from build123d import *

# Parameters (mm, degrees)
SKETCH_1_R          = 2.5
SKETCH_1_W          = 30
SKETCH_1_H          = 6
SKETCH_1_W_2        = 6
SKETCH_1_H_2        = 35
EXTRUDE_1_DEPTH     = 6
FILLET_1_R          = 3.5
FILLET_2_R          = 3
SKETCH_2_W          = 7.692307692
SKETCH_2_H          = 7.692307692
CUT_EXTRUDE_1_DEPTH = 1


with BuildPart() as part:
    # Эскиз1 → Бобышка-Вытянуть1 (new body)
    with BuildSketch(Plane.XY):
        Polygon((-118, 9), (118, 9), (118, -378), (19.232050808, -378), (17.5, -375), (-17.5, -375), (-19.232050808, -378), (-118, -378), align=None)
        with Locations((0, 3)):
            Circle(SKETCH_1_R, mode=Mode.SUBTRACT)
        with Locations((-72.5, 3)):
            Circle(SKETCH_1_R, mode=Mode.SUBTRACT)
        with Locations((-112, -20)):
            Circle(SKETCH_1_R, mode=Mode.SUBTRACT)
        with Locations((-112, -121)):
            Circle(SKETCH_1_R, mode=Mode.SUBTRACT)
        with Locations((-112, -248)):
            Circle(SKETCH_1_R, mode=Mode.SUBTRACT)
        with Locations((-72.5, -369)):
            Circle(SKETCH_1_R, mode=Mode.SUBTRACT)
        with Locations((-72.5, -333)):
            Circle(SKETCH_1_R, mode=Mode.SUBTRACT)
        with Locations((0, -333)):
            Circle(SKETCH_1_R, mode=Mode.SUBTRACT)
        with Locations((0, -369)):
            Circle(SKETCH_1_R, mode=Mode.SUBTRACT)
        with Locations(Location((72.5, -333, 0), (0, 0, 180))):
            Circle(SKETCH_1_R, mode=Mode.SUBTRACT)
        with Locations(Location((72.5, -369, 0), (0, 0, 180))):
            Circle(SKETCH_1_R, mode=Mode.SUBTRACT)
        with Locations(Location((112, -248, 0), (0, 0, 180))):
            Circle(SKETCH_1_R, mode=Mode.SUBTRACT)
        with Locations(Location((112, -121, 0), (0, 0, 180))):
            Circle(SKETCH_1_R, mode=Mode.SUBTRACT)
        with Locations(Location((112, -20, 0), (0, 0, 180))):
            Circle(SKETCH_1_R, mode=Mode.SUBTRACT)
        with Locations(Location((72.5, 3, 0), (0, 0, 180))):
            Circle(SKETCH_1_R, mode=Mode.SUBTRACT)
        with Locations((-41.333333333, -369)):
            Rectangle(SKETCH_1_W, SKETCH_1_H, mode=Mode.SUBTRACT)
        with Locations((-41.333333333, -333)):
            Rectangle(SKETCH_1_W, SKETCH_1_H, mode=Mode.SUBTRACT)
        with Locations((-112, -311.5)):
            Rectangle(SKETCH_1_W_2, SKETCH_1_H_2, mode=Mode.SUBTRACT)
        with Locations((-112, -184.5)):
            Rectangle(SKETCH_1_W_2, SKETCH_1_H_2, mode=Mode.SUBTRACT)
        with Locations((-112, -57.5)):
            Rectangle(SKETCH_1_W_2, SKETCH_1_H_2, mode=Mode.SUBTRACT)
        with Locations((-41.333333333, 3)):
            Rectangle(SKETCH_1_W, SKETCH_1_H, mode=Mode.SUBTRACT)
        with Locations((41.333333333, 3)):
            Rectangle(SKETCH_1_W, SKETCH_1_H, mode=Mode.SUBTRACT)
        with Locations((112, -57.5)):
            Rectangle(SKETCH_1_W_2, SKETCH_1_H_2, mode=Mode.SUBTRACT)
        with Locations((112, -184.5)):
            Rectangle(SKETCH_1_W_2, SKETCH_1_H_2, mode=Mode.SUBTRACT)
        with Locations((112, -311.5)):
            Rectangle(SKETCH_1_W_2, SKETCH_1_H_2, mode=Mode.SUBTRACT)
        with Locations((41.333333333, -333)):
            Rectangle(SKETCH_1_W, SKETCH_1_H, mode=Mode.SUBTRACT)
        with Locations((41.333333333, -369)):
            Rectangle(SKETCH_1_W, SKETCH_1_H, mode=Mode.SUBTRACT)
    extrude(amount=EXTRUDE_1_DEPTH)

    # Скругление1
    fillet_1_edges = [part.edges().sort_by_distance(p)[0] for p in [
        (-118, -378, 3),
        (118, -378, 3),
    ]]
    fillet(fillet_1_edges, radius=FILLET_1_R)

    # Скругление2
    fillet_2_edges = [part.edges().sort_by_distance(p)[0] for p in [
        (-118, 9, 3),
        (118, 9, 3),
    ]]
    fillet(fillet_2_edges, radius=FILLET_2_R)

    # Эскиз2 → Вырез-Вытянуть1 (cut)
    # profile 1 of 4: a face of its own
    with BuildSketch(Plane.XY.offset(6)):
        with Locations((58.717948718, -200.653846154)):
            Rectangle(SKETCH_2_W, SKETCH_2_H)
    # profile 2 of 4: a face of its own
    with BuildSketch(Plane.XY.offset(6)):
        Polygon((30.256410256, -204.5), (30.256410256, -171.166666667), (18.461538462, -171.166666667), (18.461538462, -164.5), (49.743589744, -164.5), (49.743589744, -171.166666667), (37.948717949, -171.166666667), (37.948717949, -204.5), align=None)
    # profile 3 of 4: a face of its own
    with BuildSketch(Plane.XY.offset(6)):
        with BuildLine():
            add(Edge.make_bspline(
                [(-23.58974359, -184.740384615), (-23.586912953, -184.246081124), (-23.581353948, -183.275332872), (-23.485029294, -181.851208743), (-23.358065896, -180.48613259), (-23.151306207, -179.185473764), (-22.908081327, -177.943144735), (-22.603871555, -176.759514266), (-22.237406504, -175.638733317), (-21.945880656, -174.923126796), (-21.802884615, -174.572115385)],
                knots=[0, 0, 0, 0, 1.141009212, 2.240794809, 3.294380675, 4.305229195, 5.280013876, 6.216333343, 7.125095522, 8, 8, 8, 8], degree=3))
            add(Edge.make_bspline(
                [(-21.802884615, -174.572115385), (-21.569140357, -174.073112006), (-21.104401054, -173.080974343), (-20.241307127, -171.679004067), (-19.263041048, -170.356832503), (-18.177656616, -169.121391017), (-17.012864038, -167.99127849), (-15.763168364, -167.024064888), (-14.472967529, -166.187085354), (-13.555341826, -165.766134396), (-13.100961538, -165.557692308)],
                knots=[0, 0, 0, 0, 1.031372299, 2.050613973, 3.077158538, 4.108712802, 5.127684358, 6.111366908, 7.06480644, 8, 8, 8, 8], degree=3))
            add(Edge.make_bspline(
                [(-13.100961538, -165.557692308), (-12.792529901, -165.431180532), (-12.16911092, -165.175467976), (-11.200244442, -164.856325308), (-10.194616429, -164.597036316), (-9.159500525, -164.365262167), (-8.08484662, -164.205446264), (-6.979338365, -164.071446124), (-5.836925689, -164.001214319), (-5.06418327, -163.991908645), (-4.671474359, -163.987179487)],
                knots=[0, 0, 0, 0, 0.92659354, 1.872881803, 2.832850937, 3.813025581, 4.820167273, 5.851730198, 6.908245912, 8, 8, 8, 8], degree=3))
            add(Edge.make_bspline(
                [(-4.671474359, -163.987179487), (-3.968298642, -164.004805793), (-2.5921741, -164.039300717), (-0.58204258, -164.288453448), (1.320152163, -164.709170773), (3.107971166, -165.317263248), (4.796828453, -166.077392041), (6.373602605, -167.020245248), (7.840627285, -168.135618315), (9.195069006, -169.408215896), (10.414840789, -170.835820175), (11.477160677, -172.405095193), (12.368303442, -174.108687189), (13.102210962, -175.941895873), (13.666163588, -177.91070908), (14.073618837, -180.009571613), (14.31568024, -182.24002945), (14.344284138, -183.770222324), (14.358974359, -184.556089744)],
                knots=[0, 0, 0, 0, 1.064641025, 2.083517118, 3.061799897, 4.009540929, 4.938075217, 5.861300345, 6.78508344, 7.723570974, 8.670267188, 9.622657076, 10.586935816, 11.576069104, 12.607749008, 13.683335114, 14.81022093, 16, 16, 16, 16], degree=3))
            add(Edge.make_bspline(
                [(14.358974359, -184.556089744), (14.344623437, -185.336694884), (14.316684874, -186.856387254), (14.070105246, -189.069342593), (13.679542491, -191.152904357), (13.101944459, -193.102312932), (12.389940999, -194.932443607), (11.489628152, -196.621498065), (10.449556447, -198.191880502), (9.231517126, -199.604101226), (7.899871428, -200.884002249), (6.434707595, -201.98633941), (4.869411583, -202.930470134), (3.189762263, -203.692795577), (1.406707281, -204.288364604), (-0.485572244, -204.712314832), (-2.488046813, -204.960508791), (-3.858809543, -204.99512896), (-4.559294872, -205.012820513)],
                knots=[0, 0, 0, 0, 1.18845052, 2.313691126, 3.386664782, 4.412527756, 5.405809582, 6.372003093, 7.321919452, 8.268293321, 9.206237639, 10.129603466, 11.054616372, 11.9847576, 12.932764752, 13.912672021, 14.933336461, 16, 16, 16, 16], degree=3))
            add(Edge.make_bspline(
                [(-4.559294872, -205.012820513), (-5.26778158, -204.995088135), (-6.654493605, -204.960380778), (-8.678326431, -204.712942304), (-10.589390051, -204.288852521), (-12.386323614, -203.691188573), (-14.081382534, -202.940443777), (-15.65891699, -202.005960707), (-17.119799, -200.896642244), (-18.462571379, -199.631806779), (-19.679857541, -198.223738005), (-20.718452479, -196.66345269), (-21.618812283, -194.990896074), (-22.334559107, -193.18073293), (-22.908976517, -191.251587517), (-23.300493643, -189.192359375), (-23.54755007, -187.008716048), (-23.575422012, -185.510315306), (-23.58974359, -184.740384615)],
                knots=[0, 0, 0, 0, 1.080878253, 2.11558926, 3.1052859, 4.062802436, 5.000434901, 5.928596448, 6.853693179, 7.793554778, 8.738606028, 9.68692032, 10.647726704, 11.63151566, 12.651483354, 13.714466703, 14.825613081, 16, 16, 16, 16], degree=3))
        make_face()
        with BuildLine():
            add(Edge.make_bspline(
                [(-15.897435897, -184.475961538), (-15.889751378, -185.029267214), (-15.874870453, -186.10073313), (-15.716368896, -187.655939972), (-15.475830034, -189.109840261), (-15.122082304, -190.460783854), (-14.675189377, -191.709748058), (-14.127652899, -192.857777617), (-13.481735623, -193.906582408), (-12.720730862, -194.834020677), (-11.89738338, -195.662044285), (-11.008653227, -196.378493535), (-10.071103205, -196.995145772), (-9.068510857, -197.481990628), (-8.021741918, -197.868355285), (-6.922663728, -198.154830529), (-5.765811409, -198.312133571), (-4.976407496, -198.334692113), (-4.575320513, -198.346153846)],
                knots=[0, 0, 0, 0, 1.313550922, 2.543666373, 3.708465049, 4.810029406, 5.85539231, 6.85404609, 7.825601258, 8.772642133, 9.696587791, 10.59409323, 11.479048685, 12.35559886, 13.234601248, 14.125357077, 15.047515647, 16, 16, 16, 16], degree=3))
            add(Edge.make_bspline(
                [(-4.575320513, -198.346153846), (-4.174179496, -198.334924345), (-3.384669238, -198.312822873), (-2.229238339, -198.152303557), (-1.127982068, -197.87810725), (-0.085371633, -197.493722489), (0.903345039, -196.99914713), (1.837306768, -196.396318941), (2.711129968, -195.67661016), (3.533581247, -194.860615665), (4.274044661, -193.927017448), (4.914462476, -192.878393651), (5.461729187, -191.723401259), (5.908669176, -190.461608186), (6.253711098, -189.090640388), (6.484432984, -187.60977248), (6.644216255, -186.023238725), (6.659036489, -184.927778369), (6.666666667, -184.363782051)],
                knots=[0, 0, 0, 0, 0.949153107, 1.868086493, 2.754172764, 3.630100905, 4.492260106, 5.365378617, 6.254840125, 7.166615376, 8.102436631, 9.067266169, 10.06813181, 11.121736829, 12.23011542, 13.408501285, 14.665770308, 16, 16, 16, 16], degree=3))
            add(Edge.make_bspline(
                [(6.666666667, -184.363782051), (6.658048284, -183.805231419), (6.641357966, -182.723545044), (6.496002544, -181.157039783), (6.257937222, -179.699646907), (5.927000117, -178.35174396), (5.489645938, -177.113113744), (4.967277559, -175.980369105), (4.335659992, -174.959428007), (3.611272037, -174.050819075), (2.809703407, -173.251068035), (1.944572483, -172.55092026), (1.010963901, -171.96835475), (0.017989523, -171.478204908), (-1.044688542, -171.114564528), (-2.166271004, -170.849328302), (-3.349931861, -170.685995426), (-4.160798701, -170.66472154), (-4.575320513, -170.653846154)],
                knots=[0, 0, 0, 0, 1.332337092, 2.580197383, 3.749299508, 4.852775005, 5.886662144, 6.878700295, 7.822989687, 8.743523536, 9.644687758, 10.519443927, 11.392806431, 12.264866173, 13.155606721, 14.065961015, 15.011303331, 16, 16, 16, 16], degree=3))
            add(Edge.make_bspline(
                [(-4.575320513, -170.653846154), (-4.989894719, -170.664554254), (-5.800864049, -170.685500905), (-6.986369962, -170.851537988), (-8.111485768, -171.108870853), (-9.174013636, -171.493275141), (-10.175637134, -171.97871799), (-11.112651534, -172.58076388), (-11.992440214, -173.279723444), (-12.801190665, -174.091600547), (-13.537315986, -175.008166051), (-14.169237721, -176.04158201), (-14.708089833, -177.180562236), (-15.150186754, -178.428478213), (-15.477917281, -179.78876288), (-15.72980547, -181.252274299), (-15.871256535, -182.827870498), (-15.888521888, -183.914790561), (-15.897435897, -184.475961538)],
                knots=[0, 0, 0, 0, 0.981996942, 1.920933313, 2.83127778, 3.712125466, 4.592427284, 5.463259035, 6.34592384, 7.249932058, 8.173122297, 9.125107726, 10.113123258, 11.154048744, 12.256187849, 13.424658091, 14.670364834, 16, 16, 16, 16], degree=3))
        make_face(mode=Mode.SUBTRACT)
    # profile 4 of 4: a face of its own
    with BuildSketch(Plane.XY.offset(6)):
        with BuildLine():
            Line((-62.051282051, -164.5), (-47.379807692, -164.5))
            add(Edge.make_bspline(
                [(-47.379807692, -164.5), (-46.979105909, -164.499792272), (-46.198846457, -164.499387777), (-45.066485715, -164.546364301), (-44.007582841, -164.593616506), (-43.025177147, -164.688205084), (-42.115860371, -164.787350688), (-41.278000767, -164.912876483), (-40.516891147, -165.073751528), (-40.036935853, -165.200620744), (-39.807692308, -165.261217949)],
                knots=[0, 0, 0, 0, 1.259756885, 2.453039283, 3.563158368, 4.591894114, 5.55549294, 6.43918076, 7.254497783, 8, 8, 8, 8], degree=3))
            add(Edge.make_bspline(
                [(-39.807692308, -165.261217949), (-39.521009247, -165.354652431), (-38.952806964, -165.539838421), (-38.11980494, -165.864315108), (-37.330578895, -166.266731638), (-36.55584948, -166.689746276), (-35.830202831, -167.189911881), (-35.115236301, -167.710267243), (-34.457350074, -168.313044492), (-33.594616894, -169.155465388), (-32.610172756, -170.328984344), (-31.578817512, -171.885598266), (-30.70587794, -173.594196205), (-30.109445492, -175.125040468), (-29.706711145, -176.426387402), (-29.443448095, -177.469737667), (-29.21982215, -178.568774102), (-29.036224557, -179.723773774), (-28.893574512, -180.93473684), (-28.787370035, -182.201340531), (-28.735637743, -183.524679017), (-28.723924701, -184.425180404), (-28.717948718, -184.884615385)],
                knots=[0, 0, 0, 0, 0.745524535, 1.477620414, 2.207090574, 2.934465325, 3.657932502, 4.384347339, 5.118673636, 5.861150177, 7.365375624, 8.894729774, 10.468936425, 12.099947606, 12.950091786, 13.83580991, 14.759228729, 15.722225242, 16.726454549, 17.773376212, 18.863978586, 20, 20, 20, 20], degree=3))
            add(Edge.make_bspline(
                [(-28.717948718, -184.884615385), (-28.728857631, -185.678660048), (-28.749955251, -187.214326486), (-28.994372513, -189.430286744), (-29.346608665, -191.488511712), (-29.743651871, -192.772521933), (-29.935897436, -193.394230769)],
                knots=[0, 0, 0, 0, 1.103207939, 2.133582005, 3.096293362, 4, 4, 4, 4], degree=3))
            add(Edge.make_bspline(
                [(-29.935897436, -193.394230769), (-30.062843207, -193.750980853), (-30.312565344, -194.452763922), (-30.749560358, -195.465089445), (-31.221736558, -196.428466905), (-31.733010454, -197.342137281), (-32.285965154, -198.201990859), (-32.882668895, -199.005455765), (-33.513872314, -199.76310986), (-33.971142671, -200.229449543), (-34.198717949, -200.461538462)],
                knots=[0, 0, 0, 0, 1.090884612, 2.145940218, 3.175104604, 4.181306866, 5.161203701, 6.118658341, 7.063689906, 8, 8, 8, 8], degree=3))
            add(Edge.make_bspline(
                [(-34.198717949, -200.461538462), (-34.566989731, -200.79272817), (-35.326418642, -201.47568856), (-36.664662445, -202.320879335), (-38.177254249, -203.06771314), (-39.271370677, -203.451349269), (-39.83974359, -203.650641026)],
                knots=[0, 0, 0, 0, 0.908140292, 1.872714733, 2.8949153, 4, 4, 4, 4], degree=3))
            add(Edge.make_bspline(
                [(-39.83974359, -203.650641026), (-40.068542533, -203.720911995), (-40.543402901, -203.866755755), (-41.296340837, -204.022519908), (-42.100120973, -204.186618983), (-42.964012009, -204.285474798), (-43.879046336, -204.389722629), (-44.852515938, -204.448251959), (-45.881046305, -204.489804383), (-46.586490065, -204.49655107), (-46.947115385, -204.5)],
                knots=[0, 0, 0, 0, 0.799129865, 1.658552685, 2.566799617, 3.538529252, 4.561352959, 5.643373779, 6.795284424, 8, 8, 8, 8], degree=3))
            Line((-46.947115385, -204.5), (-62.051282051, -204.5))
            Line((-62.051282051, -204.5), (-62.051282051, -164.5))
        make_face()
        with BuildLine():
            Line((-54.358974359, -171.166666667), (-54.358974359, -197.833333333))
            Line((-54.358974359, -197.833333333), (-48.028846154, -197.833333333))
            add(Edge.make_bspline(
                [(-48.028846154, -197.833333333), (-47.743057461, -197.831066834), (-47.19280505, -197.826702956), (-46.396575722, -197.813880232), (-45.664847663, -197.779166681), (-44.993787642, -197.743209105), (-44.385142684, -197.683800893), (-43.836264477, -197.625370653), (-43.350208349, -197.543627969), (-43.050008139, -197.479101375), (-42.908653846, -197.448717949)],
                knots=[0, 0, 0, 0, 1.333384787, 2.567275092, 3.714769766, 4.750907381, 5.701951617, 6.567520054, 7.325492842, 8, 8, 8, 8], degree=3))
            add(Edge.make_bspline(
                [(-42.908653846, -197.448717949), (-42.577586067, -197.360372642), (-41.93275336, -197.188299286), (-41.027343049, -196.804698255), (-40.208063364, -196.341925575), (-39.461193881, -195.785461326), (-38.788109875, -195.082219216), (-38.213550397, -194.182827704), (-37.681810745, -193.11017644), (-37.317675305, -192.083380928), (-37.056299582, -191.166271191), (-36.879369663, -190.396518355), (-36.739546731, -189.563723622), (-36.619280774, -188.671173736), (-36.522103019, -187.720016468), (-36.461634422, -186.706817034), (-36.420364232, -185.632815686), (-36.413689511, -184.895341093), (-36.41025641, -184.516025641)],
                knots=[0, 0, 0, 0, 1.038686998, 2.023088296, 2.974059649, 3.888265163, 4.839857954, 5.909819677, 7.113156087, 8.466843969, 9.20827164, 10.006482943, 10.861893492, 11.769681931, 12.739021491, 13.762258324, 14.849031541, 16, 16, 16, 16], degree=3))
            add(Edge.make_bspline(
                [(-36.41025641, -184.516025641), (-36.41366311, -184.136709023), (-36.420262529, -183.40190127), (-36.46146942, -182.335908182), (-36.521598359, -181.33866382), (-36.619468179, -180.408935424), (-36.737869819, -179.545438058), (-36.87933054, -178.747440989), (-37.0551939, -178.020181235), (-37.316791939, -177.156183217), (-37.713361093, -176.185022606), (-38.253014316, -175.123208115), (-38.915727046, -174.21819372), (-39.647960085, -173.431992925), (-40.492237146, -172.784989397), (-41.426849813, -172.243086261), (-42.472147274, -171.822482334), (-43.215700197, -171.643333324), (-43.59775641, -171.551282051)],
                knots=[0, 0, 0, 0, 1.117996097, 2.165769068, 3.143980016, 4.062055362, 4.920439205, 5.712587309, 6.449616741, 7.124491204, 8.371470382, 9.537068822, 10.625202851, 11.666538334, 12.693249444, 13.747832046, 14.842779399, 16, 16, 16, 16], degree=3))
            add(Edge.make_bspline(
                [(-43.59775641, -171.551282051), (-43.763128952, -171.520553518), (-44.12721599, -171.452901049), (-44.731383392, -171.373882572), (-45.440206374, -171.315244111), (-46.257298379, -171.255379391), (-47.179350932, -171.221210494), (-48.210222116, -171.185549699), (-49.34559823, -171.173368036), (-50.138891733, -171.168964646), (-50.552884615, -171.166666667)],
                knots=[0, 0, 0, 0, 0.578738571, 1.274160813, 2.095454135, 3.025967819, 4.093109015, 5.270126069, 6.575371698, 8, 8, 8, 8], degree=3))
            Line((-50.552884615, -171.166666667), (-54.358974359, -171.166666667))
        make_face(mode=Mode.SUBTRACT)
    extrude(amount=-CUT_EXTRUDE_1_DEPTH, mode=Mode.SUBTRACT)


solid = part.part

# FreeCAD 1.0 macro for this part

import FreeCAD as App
import Part
import Sketcher
from FreeCAD import Vector
Q = App.Units.Quantity


def edges_at(feature, points):
    """Names of the edges that pass closest to the given points."""
    edges = feature.Shape.Edges
    near = lambda p: min(range(len(edges)), key=lambda i: edges[i].distToShape(Part.Vertex(*p))[0])
    return sorted({f"Edge{near(p) + 1}" for p in points})


def add_polygon(sketch, points):
    """Adds a closed chain of lines whose ends are joined by coincident constraints."""
    first, n = sketch.GeometryCount, len(points)
    for a, b in zip(points, points[1:] + points[:1]):
        sketch.addGeometry(Part.LineSegment(App.Vector(*a, 0), App.Vector(*b, 0)), False)
    for i in range(n):
        sketch.addConstraint(Sketcher.Constraint("Coincident", first + i, 2, first + (i + 1) % n, 1))

doc = App.newDocument("Part")
body = doc.addObject("PartDesign::Body", "Body")

sketch1 = doc.addObject("Sketcher::SketchObject", "Sketch")
body.addObject(sketch1)
sketch1.AttachmentSupport = (doc.XY_Plane, [""])
sketch1.MapMode = "FlatFace"
add_polygon(sketch1, [(118, 9), (-118, 9), (-118, -378), (-19.2, -378), (-17.5, -375), (17.5, -375), (19.2, -378), (118, -378)])
sketch1.addGeometry(Part.Circle(Vector(72.5, -369, 0), Vector(0, 0, 1), 2.5), False)
sketch1.addGeometry(Part.Circle(Vector(72.5, -333, 0), Vector(0, 0, 1), 2.5), False)
add_polygon(sketch1, [(109, -329), (109, -294), (115, -294), (115, -329)])
add_polygon(sketch1, [(26.3, -372), (26.3, -366), (56.3, -366), (56.3, -372)])
add_polygon(sketch1, [(26.3, -336), (26.3, -330), (56.3, -330), (56.3, -336)])
sketch1.addGeometry(Part.Circle(Vector(112, -248, 0), Vector(0, 0, 1), 2.5), False)
add_polygon(sketch1, [(109, -202), (109, -167), (115, -167), (115, -202)])
sketch1.addGeometry(Part.Circle(Vector(0, -369, 0), Vector(0, 0, 1), 2.5), False)
sketch1.addGeometry(Part.Circle(Vector(0, -333, 0), Vector(0, 0, 1), 2.5), False)
add_polygon(sketch1, [(-56.3, -372), (-56.3, -366), (-26.3, -366), (-26.3, -372)])
add_polygon(sketch1, [(-56.3, -336), (-56.3, -330), (-26.3, -330), (-26.3, -336)])
sketch1.addGeometry(Part.Circle(Vector(-72.5, -369, 0), Vector(0, 0, 1), 2.5), False)
sketch1.addGeometry(Part.Circle(Vector(-72.5, -333, 0), Vector(0, 0, 1), 2.5), False)
add_polygon(sketch1, [(-115, -329), (-115, -294), (-109, -294), (-109, -329)])
sketch1.addGeometry(Part.Circle(Vector(-112, -248, 0), Vector(0, 0, 1), 2.5), False)
add_polygon(sketch1, [(-115, -202), (-115, -167), (-109, -167), (-109, -202)])
sketch1.addGeometry(Part.Circle(Vector(112, -121, 0), Vector(0, 0, 1), 2.5), False)
add_polygon(sketch1, [(109, -75), (109, -40), (115, -40), (115, -75)])
sketch1.addGeometry(Part.Circle(Vector(112, -20, 0), Vector(0, 0, 1), 2.5), False)
sketch1.addGeometry(Part.Circle(Vector(72.5, 3, 0), Vector(0, 0, 1), 2.5), False)
add_polygon(sketch1, [(26.3, 0), (26.3, 6), (56.3, 6), (56.3, 0)])
sketch1.addGeometry(Part.Circle(Vector(-112, -121, 0), Vector(0, 0, 1), 2.5), False)
sketch1.addGeometry(Part.Circle(Vector(0, 3, 0), Vector(0, 0, 1), 2.5), False)
add_polygon(sketch1, [(-56.3, 0), (-56.3, 6), (-26.3, 6), (-26.3, 0)])
add_polygon(sketch1, [(-115, -75), (-115, -40), (-109, -40), (-109, -75)])
sketch1.addGeometry(Part.Circle(Vector(-72.5, 3, 0), Vector(0, 0, 1), 2.5), False)
sketch1.addGeometry(Part.Circle(Vector(-112, -20, 0), Vector(0, 0, 1), 2.5), False)
sketch1.addConstraint(Sketcher.Constraint("Horizontal", 0))
sketch1.addConstraint(Sketcher.Constraint("Vertical", 1))
sketch1.addConstraint(Sketcher.Constraint("Horizontal", 2))
sketch1.addConstraint(Sketcher.Constraint("Horizontal", 4))
sketch1.addConstraint(Sketcher.Constraint("Horizontal", 6))
sketch1.addConstraint(Sketcher.Constraint("Vertical", 7))
sketch1.addConstraint(Sketcher.Constraint("Vertical", 10))
sketch1.addConstraint(Sketcher.Constraint("Horizontal", 11))
sketch1.addConstraint(Sketcher.Constraint("Vertical", 12))
sketch1.addConstraint(Sketcher.Constraint("Horizontal", 13))
sketch1.addConstraint(Sketcher.Constraint("Vertical", 14))
sketch1.addConstraint(Sketcher.Constraint("Horizontal", 15))
sketch1.addConstraint(Sketcher.Constraint("Vertical", 16))
sketch1.addConstraint(Sketcher.Constraint("Horizontal", 17))
sketch1.addConstraint(Sketcher.Constraint("Vertical", 18))
sketch1.addConstraint(Sketcher.Constraint("Horizontal", 19))
sketch1.addConstraint(Sketcher.Constraint("Vertical", 20))
sketch1.addConstraint(Sketcher.Constraint("Horizontal", 21))
sketch1.addConstraint(Sketcher.Constraint("Vertical", 23))
sketch1.addConstraint(Sketcher.Constraint("Horizontal", 24))
sketch1.addConstraint(Sketcher.Constraint("Vertical", 25))
sketch1.addConstraint(Sketcher.Constraint("Horizontal", 26))
sketch1.addConstraint(Sketcher.Constraint("Vertical", 29))
sketch1.addConstraint(Sketcher.Constraint("Horizontal", 30))
sketch1.addConstraint(Sketcher.Constraint("Vertical", 31))
sketch1.addConstraint(Sketcher.Constraint("Horizontal", 32))
sketch1.addConstraint(Sketcher.Constraint("Vertical", 33))
sketch1.addConstraint(Sketcher.Constraint("Horizontal", 34))
sketch1.addConstraint(Sketcher.Constraint("Vertical", 35))
sketch1.addConstraint(Sketcher.Constraint("Horizontal", 36))
sketch1.addConstraint(Sketcher.Constraint("Vertical", 39))
sketch1.addConstraint(Sketcher.Constraint("Horizontal", 40))
sketch1.addConstraint(Sketcher.Constraint("Vertical", 41))
sketch1.addConstraint(Sketcher.Constraint("Horizontal", 42))
sketch1.addConstraint(Sketcher.Constraint("Vertical", 44))
sketch1.addConstraint(Sketcher.Constraint("Horizontal", 45))
sketch1.addConstraint(Sketcher.Constraint("Vertical", 46))
sketch1.addConstraint(Sketcher.Constraint("Horizontal", 47))
sketch1.addConstraint(Sketcher.Constraint("Vertical", 49))
sketch1.addConstraint(Sketcher.Constraint("Horizontal", 50))
sketch1.addConstraint(Sketcher.Constraint("Vertical", 51))
sketch1.addConstraint(Sketcher.Constraint("Horizontal", 52))
sketch1.addConstraint(Sketcher.Constraint("Vertical", 55))
sketch1.addConstraint(Sketcher.Constraint("Horizontal", 56))
sketch1.addConstraint(Sketcher.Constraint("Vertical", 57))
sketch1.addConstraint(Sketcher.Constraint("Horizontal", 58))
sketch1.addConstraint(Sketcher.Constraint("Vertical", 61))
sketch1.addConstraint(Sketcher.Constraint("Horizontal", 62))
sketch1.addConstraint(Sketcher.Constraint("Vertical", 63))
sketch1.addConstraint(Sketcher.Constraint("Horizontal", 64))
sketch1.addConstraint(Sketcher.Constraint("Vertical", 65))
sketch1.addConstraint(Sketcher.Constraint("Horizontal", 66))
sketch1.addConstraint(Sketcher.Constraint("Vertical", 67))
sketch1.addConstraint(Sketcher.Constraint("Horizontal", 68))
sketch1.addConstraint(Sketcher.Constraint("Equal", 8, 9))
sketch1.addConstraint(Sketcher.Constraint("Equal", 9, 22))
sketch1.addConstraint(Sketcher.Constraint("Equal", 22, 27))
sketch1.addConstraint(Sketcher.Constraint("Equal", 27, 28))
sketch1.addConstraint(Sketcher.Constraint("Equal", 28, 37))
sketch1.addConstraint(Sketcher.Constraint("Equal", 37, 38))
sketch1.addConstraint(Sketcher.Constraint("Equal", 38, 43))
sketch1.addConstraint(Sketcher.Constraint("Equal", 43, 48))
sketch1.addConstraint(Sketcher.Constraint("Equal", 48, 53))
sketch1.addConstraint(Sketcher.Constraint("Equal", 53, 54))
sketch1.addConstraint(Sketcher.Constraint("Equal", 54, 59))
sketch1.addConstraint(Sketcher.Constraint("Equal", 59, 60))
sketch1.addConstraint(Sketcher.Constraint("Equal", 60, 69))
sketch1.addConstraint(Sketcher.Constraint("Equal", 69, 70))
sketch1.addConstraint(Sketcher.Constraint("Symmetric", 58, 2, 63, 2, -1, 1))
sketch1.addConstraint(Sketcher.Constraint("Symmetric", 8, 3, 37, 3, -2))
sketch1.addConstraint(Sketcher.Constraint("Symmetric", 9, 3, 38, 3, -2))
sketch1.addConstraint(Sketcher.Constraint("Symmetric", 22, 3, 43, 3, -2))
sketch1.addConstraint(Sketcher.Constraint("Symmetric", 48, 3, 59, 3, -2))
sketch1.addConstraint(Sketcher.Constraint("Symmetric", 54, 3, 69, 3, -2))
sketch1.addConstraint(Sketcher.Constraint("Symmetric", 53, 3, 70, 3, -2))
sketch1.addConstraint(Sketcher.Constraint("Symmetric", 2, 2, 5, 2, -2))
sketch1.addConstraint(Sketcher.Constraint("Symmetric", 15, 2, 29, 2, -2))
sketch1.addConstraint(Sketcher.Constraint("Symmetric", 17, 2, 31, 2, -2))
sketch1.addConstraint(Sketcher.Constraint("Symmetric", 19, 2, 33, 2, -2))
sketch1.addConstraint(Sketcher.Constraint("Symmetric", 21, 2, 35, 2, -2))
sketch1.addConstraint(Sketcher.Constraint("Symmetric", 11, 2, 39, 2, -2))
sketch1.addConstraint(Sketcher.Constraint("Symmetric", 13, 2, 41, 2, -2))
sketch1.addConstraint(Sketcher.Constraint("Symmetric", 24, 2, 44, 2, -2))
sketch1.addConstraint(Sketcher.Constraint("Symmetric", 26, 2, 46, 2, -2))
sketch1.addConstraint(Sketcher.Constraint("Symmetric", 56, 2, 61, 2, -2))
sketch1.addConstraint(Sketcher.Constraint("Symmetric", 50, 2, 65, 2, -2))
sketch1.addConstraint(Sketcher.Constraint("Symmetric", 52, 2, 67, 2, -2))
sketch1.addConstraint(Sketcher.Constraint("PointOnObject", 27, 3, -2))
sketch1.addConstraint(Sketcher.Constraint("PointOnObject", 28, 3, -2))
sketch1.addConstraint(Sketcher.Constraint("PointOnObject", 60, 3, -2))
sketch1.addConstraint(Sketcher.Constraint("PointOnObject", 57, 2, -1))
sketch1.addConstraint(Sketcher.Constraint("Horizontal", 8, 3, 27, 3))
sketch1.addConstraint(Sketcher.Constraint("Horizontal", 9, 3, 28, 3))
sketch1.addConstraint(Sketcher.Constraint("Horizontal", 54, 3, 60, 3))
sketch1.addConstraint(Sketcher.Constraint("Vertical", 8, 3, 9, 3))
sketch1.addConstraint(Sketcher.Constraint("Vertical", 22, 3, 48, 3))
sketch1.addConstraint(Sketcher.Constraint("Vertical", 48, 3, 53, 3))
sketch1.addConstraint(Sketcher.Constraint("Vertical", 9, 3, 54, 3))
sketch1.addConstraint(Sketcher.Constraint("Vertical", 17, 2, 18, 2))
sketch1.addConstraint(Sketcher.Constraint("Vertical", 16, 2, 19, 2))
sketch1.addConstraint(Sketcher.Constraint("Vertical", 13, 2, 23, 2))
sketch1.addConstraint(Sketcher.Constraint("Vertical", 12, 2, 24, 2))
sketch1.addConstraint(Sketcher.Constraint("Vertical", 26, 2, 49, 2))
sketch1.addConstraint(Sketcher.Constraint("Vertical", 25, 2, 50, 2))
sketch1.addConstraint(Sketcher.Constraint("Vertical", 21, 2, 55, 2))
sketch1.addConstraint(Sketcher.Constraint("Vertical", 20, 2, 56, 2))
sketch1.addConstraint(Sketcher.Constraint("Equal", 2, 6))
sketch1.addConstraint(Sketcher.Constraint("Equal", 4, 10))
sketch1.addConstraint(Sketcher.Constraint("Equal", 68, 14))
sketch1.addConstraint(Sketcher.Constraint("Equal", 16, 18))
sketch1.addConstraint(Sketcher.Constraint("Equal", 12, 23))
sketch1.addConstraint(Sketcher.Constraint("Equal", 46, 49))
sketch1.addConstraint(Sketcher.Constraint("Equal", 35, 55))
sketch1.addConstraint(Sketcher.Constraint("Equal", 3, 5))
sketch1.addConstraint(Sketcher.Constraint("Diameter", 8, 5.0))
sketch1.addConstraint(Sketcher.Constraint("DistanceX", 0, 2, 0, 1, 236.0))
sketch1.addConstraint(Sketcher.Constraint("DistanceX", 4, 1, 4, 2, 35.0))
sketch1.addConstraint(Sketcher.Constraint("DistanceX", 11, 1, 11, 2, 6.0))
sketch1.addConstraint(Sketcher.Constraint("DistanceX", 15, 1, 15, 2, 30.0))
sketch1.addConstraint(Sketcher.Constraint("DistanceY", 1, 2, 1, 1, 387.0))
sketch1.addConstraint(Sketcher.Constraint("Angle", 3, Q("60 deg")))
sketch1.addConstraint(Sketcher.Constraint("DistanceY", 8, 3, -1, 1, 369.0))
sketch1.addConstraint(Sketcher.Constraint("DistanceY", 9, 3, -1, 1, 333.0))
sketch1.addConstraint(Sketcher.Constraint("DistanceX", -1, 1, 22, 3, 112.0))
sketch1.addConstraint(Sketcher.Constraint("DistanceY", 22, 3, -1, 1, 248.0))
sketch1.addConstraint(Sketcher.Constraint("DistanceY", 48, 3, -1, 1, 121.0))
sketch1.addConstraint(Sketcher.Constraint("DistanceY", 53, 3, -1, 1, 20.0))
sketch1.addConstraint(Sketcher.Constraint("DistanceY", -1, 1, 54, 3, 3.0))
sketch1.addConstraint(Sketcher.Constraint("DistanceY", -1, 1, 0, 2, 9.0))
sketch1.addConstraint(Sketcher.Constraint("DistanceY", 3, 2, -1, 1, 375.0))
sketch1.addConstraint(Sketcher.Constraint("DistanceX", -1, 1, 10, 2, 109.0))
sketch1.addConstraint(Sketcher.Constraint("DistanceY", 10, 2, -1, 1, 294.0))
sketch1.addConstraint(Sketcher.Constraint("DistanceY", 14, 2, -1, 1, 366.0))
sketch1.addConstraint(Sketcher.Constraint("DistanceY", 18, 2, -1, 1, 330.0))
sketch1.addConstraint(Sketcher.Constraint("DistanceY", 23, 2, -1, 1, 167.0))
sketch1.addConstraint(Sketcher.Constraint("DistanceY", 49, 2, -1, 1, 40.0))
sketch1.addConstraint(Sketcher.Constraint("DistanceX", -1, 1, 8, 3, 72.5))
sketch1.addConstraint(Sketcher.Constraint("DistanceX", -1, 1, 14, 2, 26.333333))
pad1 = doc.addObject("PartDesign::Pad", "Pad")
body.addObject(pad1)
pad1.Profile = sketch1
pad1.Length = 6
doc.recompute()

fillet = doc.addObject("PartDesign::Fillet", "Fillet")
body.addObject(fillet)
fillet.Base = (pad1, edges_at(pad1, [(-118, -378, 3), (118, -378, 3)]))
fillet.Radius = 3.5
doc.recompute()

fillet2 = doc.addObject("PartDesign::Fillet", "Fillet001")
body.addObject(fillet2)
fillet2.Base = (fillet, edges_at(fillet, [(-118, 9, 3), (118, 9, 3)]))
fillet2.Radius = 3

sketch2 = doc.addObject("Sketcher::SketchObject", "Sketch001")
body.addObject(sketch2)
sketch2.AttachmentSupport = (doc.XY_Plane, [""])
sketch2.MapMode = "FlatFace"
sketch2.AttachmentOffset = App.Placement(Vector(0, 0, 6), App.Rotation())
add_polygon(sketch2, [(54.871795, -196.807692), (54.871795, -204.5), (62.564103, -204.5), (62.564103, -196.807692)])
add_polygon(sketch2, [(30.25641, -171.166667), (30.25641, -204.5), (37.948718, -204.5), (37.948718, -171.166667), (49.74359, -171.166667), (49.74359, -164.5), (18.461538, -164.5), (18.461538, -171.166667)])
sketch2.addGeometry(Part.BSplineCurve([Vector(-23.589744, -184.740385, 0), Vector(-23.586913, -184.246081, 0), Vector(-23.581354, -183.275333, 0), Vector(-23.485029, -181.851209, 0), Vector(-23.358066, -180.486133, 0), Vector(-23.151306, -179.185474, 0), Vector(-22.908081, -177.943145, 0), Vector(-22.603872, -176.759514, 0), Vector(-22.237407, -175.638733, 0), Vector(-21.945881, -174.923127, 0), Vector(-21.802885, -174.572115, 0)], [4, 1, 1, 1, 1, 1, 1, 1, 4], [0, 1.141009212, 2.240794809, 3.294380675, 4.305229195, 5.280013876, 6.216333343, 7.125095522, 8], False, 3, [1, 1, 1, 1, 1, 1, 1, 1, 1, 1, 1], False), False)
sketch2.addGeometry(Part.BSplineCurve([Vector(-4.559295, -205.012821, 0), Vector(-5.267782, -204.995088, 0), Vector(-6.654494, -204.960381, 0), Vector(-8.678326, -204.712942, 0), Vector(-10.58939, -204.288853, 0), Vector(-12.386324, -203.691189, 0), Vector(-14.081383, -202.940444, 0), Vector(-15.658917, -202.005961, 0), Vector(-17.119799, -200.896642, 0), Vector(-18.462571, -199.631807, 0), Vector(-19.679858, -198.223738, 0), Vector(-20.718452, -196.663453, 0), Vector(-21.618812, -194.990896, 0), Vector(-22.334559, -193.180733, 0), Vector(-22.908977, -191.251588, 0), Vector(-23.300494, -189.192359, 0), Vector(-23.54755, -187.008716, 0), Vector(-23.575422, -185.510315, 0), Vector(-23.589744, -184.740385, 0)], [4, 1, 1, 1, 1, 1, 1, 1, 1, 1, 1, 1, 1, 1, 1, 1, 4], [0, 1.080878253, 2.11558926, 3.1052859, 4.062802436, 5.000434901, 5.928596448, 6.853693179, 7.793554778, 8.738606028, 9.68692032, 10.647726704, 11.63151566, 12.651483354, 13.714466703, 14.825613081, 16], False, 3, [1, 1, 1, 1, 1, 1, 1, 1, 1, 1, 1, 1, 1, 1, 1, 1, 1, 1, 1], False), False)
sketch2.addGeometry(Part.BSplineCurve([Vector(14.358974, -184.55609, 0), Vector(14.344623, -185.336695, 0), Vector(14.316685, -186.856387, 0), Vector(14.070105, -189.069343, 0), Vector(13.679542, -191.152904, 0), Vector(13.101944, -193.102313, 0), Vector(12.389941, -194.932444, 0), Vector(11.489628, -196.621498, 0), Vector(10.449556, -198.191881, 0), Vector(9.231517, -199.604101, 0), Vector(7.899871, -200.884002, 0), Vector(6.434708, -201.986339, 0), Vector(4.869412, -202.93047, 0), Vector(3.189762, -203.692796, 0), Vector(1.406707, -204.288365, 0), Vector(-0.485572, -204.712315, 0), Vector(-2.488047, -204.960509, 0), Vector(-3.85881, -204.995129, 0), Vector(-4.559295, -205.012821, 0)], [4, 1, 1, 1, 1, 1, 1, 1, 1, 1, 1, 1, 1, 1, 1, 1, 4], [0, 1.18845052, 2.313691126, 3.386664782, 4.412527756, 5.405809582, 6.372003093, 7.321919452, 8.268293321, 9.206237639, 10.129603466, 11.054616372, 11.9847576, 12.932764752, 13.912672021, 14.933336461, 16], False, 3, [1, 1, 1, 1, 1, 1, 1, 1, 1, 1, 1, 1, 1, 1, 1, 1, 1, 1, 1], False), False)
sketch2.addGeometry(Part.BSplineCurve([Vector(-4.671474, -163.987179, 0), Vector(-3.968299, -164.004806, 0), Vector(-2.592174, -164.039301, 0), Vector(-0.582043, -164.288453, 0), Vector(1.320152, -164.709171, 0), Vector(3.107971, -165.317263, 0), Vector(4.796828, -166.077392, 0), Vector(6.373603, -167.020245, 0), Vector(7.840627, -168.135618, 0), Vector(9.195069, -169.408216, 0), Vector(10.414841, -170.83582, 0), Vector(11.477161, -172.405095, 0), Vector(12.368303, -174.108687, 0), Vector(13.102211, -175.941896, 0), Vector(13.666164, -177.910709, 0), Vector(14.073619, -180.009572, 0), Vector(14.31568, -182.240029, 0), Vector(14.344284, -183.770222, 0), Vector(14.358974, -184.55609, 0)], [4, 1, 1, 1, 1, 1, 1, 1, 1, 1, 1, 1, 1, 1, 1, 1, 4], [0, 1.064641025, 2.083517118, 3.061799897, 4.009540929, 4.938075217, 5.861300345, 6.78508344, 7.723570974, 8.670267188, 9.622657076, 10.586935816, 11.576069104, 12.607749008, 13.683335114, 14.81022093, 16], False, 3, [1, 1, 1, 1, 1, 1, 1, 1, 1, 1, 1, 1, 1, 1, 1, 1, 1, 1, 1], False), False)
sketch2.addGeometry(Part.BSplineCurve([Vector(-13.100962, -165.557692, 0), Vector(-12.79253, -165.431181, 0), Vector(-12.169111, -165.175468, 0), Vector(-11.200244, -164.856325, 0), Vector(-10.194616, -164.597036, 0), Vector(-9.159501, -164.365262, 0), Vector(-8.084847, -164.205446, 0), Vector(-6.979338, -164.071446, 0), Vector(-5.836926, -164.001214, 0), Vector(-5.064183, -163.991909, 0), Vector(-4.671474, -163.987179, 0)], [4, 1, 1, 1, 1, 1, 1, 1, 4], [0, 0.92659354, 1.872881803, 2.832850937, 3.813025581, 4.820167273, 5.851730198, 6.908245912, 8], False, 3, [1, 1, 1, 1, 1, 1, 1, 1, 1, 1, 1], False), False)
sketch2.addGeometry(Part.BSplineCurve([Vector(-21.802885, -174.572115, 0), Vector(-21.56914, -174.073112, 0), Vector(-21.104401, -173.080974, 0), Vector(-20.241307, -171.679004, 0), Vector(-19.263041, -170.356833, 0), Vector(-18.177657, -169.121391, 0), Vector(-17.012864, -167.991278, 0), Vector(-15.763168, -167.024065, 0), Vector(-14.472968, -166.187085, 0), Vector(-13.555342, -165.766134, 0), Vector(-13.100962, -165.557692, 0)], [4, 1, 1, 1, 1, 1, 1, 1, 4], [0, 1.031372299, 2.050613973, 3.077158538, 4.108712802, 5.127684358, 6.111366908, 7.06480644, 8], False, 3, [1, 1, 1, 1, 1, 1, 1, 1, 1, 1, 1], False), False)
sketch2.addGeometry(Part.BSplineCurve([Vector(-4.575321, -170.653846, 0), Vector(-4.989895, -170.664554, 0), Vector(-5.800864, -170.685501, 0), Vector(-6.98637, -170.851538, 0), Vector(-8.111486, -171.108871, 0), Vector(-9.174014, -171.493275, 0), Vector(-10.175637, -171.978718, 0), Vector(-11.112652, -172.580764, 0), Vector(-11.99244, -173.279723, 0), Vector(-12.801191, -174.091601, 0), Vector(-13.537316, -175.008166, 0), Vector(-14.169238, -176.041582, 0), Vector(-14.70809, -177.180562, 0), Vector(-15.150187, -178.428478, 0), Vector(-15.477917, -179.788763, 0), Vector(-15.729805, -181.252274, 0), Vector(-15.871257, -182.82787, 0), Vector(-15.888522, -183.914791, 0), Vector(-15.897436, -184.475962, 0)], [4, 1, 1, 1, 1, 1, 1, 1, 1, 1, 1, 1, 1, 1, 1, 1, 4], [0, 0.981996942, 1.920933313, 2.83127778, 3.712125466, 4.592427284, 5.463259035, 6.34592384, 7.249932058, 8.173122297, 9.125107726, 10.113123258, 11.154048744, 12.256187849, 13.424658091, 14.670364834, 16], False, 3, [1, 1, 1, 1, 1, 1, 1, 1, 1, 1, 1, 1, 1, 1, 1, 1, 1, 1, 1], False), False)
sketch2.addGeometry(Part.BSplineCurve([Vector(6.666667, -184.363782, 0), Vector(6.658048, -183.805231, 0), Vector(6.641358, -182.723545, 0), Vector(6.496003, -181.15704, 0), Vector(6.257937, -179.699647, 0), Vector(5.927, -178.351744, 0), Vector(5.489646, -177.113114, 0), Vector(4.967278, -175.980369, 0), Vector(4.33566, -174.959428, 0), Vector(3.611272, -174.050819, 0), Vector(2.809703, -173.251068, 0), Vector(1.944572, -172.55092, 0), Vector(1.010964, -171.968355, 0), Vector(0.01799, -171.478205, 0), Vector(-1.044689, -171.114565, 0), Vector(-2.166271, -170.849328, 0), Vector(-3.349932, -170.685995, 0), Vector(-4.160799, -170.664722, 0), Vector(-4.575321, -170.653846, 0)], [4, 1, 1, 1, 1, 1, 1, 1, 1, 1, 1, 1, 1, 1, 1, 1, 4], [0, 1.332337092, 2.580197383, 3.749299508, 4.852775005, 5.886662144, 6.878700295, 7.822989687, 8.743523536, 9.644687758, 10.519443927, 11.392806431, 12.264866173, 13.155606721, 14.065961015, 15.011303331, 16], False, 3, [1, 1, 1, 1, 1, 1, 1, 1, 1, 1, 1, 1, 1, 1, 1, 1, 1, 1, 1], False), False)
sketch2.addGeometry(Part.BSplineCurve([Vector(-4.575321, -198.346154, 0), Vector(-4.174179, -198.334924, 0), Vector(-3.384669, -198.312823, 0), Vector(-2.229238, -198.152304, 0), Vector(-1.127982, -197.878107, 0), Vector(-0.085372, -197.493722, 0), Vector(0.903345, -196.999147, 0), Vector(1.837307, -196.396319, 0), Vector(2.71113, -195.67661, 0), Vector(3.533581, -194.860616, 0), Vector(4.274045, -193.927017, 0), Vector(4.914462, -192.878394, 0), Vector(5.461729, -191.723401, 0), Vector(5.908669, -190.461608, 0), Vector(6.253711, -189.09064, 0), Vector(6.484433, -187.609772, 0), Vector(6.644216, -186.023239, 0), Vector(6.659036, -184.927778, 0), Vector(6.666667, -184.363782, 0)], [4, 1, 1, 1, 1, 1, 1, 1, 1, 1, 1, 1, 1, 1, 1, 1, 4], [0, 0.949153107, 1.868086493, 2.754172764, 3.630100905, 4.492260106, 5.365378617, 6.254840125, 7.166615376, 8.102436631, 9.067266169, 10.06813181, 11.121736829, 12.23011542, 13.408501285, 14.665770308, 16], False, 3, [1, 1, 1, 1, 1, 1, 1, 1, 1, 1, 1, 1, 1, 1, 1, 1, 1, 1, 1], False), False)
sketch2.addGeometry(Part.BSplineCurve([Vector(-15.897436, -184.475962, 0), Vector(-15.889751, -185.029267, 0), Vector(-15.87487, -186.100733, 0), Vector(-15.716369, -187.65594, 0), Vector(-15.47583, -189.10984, 0), Vector(-15.122082, -190.460784, 0), Vector(-14.675189, -191.709748, 0), Vector(-14.127653, -192.857778, 0), Vector(-13.481736, -193.906582, 0), Vector(-12.720731, -194.834021, 0), Vector(-11.897383, -195.662044, 0), Vector(-11.008653, -196.378494, 0), Vector(-10.071103, -196.995146, 0), Vector(-9.068511, -197.481991, 0), Vector(-8.021742, -197.868355, 0), Vector(-6.922664, -198.154831, 0), Vector(-5.765811, -198.312134, 0), Vector(-4.976407, -198.334692, 0), Vector(-4.575321, -198.346154, 0)], [4, 1, 1, 1, 1, 1, 1, 1, 1, 1, 1, 1, 1, 1, 1, 1, 4], [0, 1.313550922, 2.543666373, 3.708465049, 4.810029406, 5.85539231, 6.85404609, 7.825601258, 8.772642133, 9.696587791, 10.59409323, 11.479048685, 12.35559886, 13.234601248, 14.125357077, 15.047515647, 16], False, 3, [1, 1, 1, 1, 1, 1, 1, 1, 1, 1, 1, 1, 1, 1, 1, 1, 1, 1, 1], False), False)
sketch2.addGeometry(Part.LineSegment(Vector(-47.379808, -164.5, 0), Vector(-62.051282, -164.5, 0)), False)
sketch2.addGeometry(Part.LineSegment(Vector(-62.051282, -164.5, 0), Vector(-62.051282, -204.5, 0)), False)
sketch2.addGeometry(Part.LineSegment(Vector(-62.051282, -204.5, 0), Vector(-46.947115, -204.5, 0)), False)
sketch2.addGeometry(Part.BSplineCurve([Vector(-39.839744, -203.650641, 0), Vector(-40.068543, -203.720912, 0), Vector(-40.543403, -203.866756, 0), Vector(-41.296341, -204.02252, 0), Vector(-42.100121, -204.186619, 0), Vector(-42.964012, -204.285475, 0), Vector(-43.879046, -204.389723, 0), Vector(-44.852516, -204.448252, 0), Vector(-45.881046, -204.489804, 0), Vector(-46.58649, -204.496551, 0), Vector(-46.947115, -204.5, 0)], [4, 1, 1, 1, 1, 1, 1, 1, 4], [0, 0.799129865, 1.658552685, 2.566799617, 3.538529252, 4.561352959, 5.643373779, 6.795284424, 8], False, 3, [1, 1, 1, 1, 1, 1, 1, 1, 1, 1, 1], False), False)
sketch2.addGeometry(Part.BSplineCurve([Vector(-34.198718, -200.461538, 0), Vector(-34.56699, -200.792728, 0), Vector(-35.326419, -201.475689, 0), Vector(-36.664662, -202.320879, 0), Vector(-38.177254, -203.067713, 0), Vector(-39.271371, -203.451349, 0), Vector(-39.839744, -203.650641, 0)], [4, 1, 1, 1, 4], [0, 0.908140292, 1.872714733, 2.8949153, 4], False, 3, [1, 1, 1, 1, 1, 1, 1], False), False)
sketch2.addGeometry(Part.BSplineCurve([Vector(-29.935897, -193.394231, 0), Vector(-30.062843, -193.750981, 0), Vector(-30.312565, -194.452764, 0), Vector(-30.74956, -195.465089, 0), Vector(-31.221737, -196.428467, 0), Vector(-31.73301, -197.342137, 0), Vector(-32.285965, -198.201991, 0), Vector(-32.882669, -199.005456, 0), Vector(-33.513872, -199.76311, 0), Vector(-33.971143, -200.22945, 0), Vector(-34.198718, -200.461538, 0)], [4, 1, 1, 1, 1, 1, 1, 1, 4], [0, 1.090884612, 2.145940218, 3.175104604, 4.181306866, 5.161203701, 6.118658341, 7.063689906, 8], False, 3, [1, 1, 1, 1, 1, 1, 1, 1, 1, 1, 1], False), False)
sketch2.addGeometry(Part.BSplineCurve([Vector(-28.717949, -184.884615, 0), Vector(-28.728858, -185.67866, 0), Vector(-28.749955, -187.214326, 0), Vector(-28.994373, -189.430287, 0), Vector(-29.346609, -191.488512, 0), Vector(-29.743652, -192.772522, 0), Vector(-29.935897, -193.394231, 0)], [4, 1, 1, 1, 4], [0, 1.103207939, 2.133582005, 3.096293362, 4], False, 3, [1, 1, 1, 1, 1, 1, 1], False), False)
sketch2.addGeometry(Part.BSplineCurve([Vector(-39.807692, -165.261218, 0), Vector(-39.521009, -165.354652, 0), Vector(-38.952807, -165.539838, 0), Vector(-38.119805, -165.864315, 0), Vector(-37.330579, -166.266732, 0), Vector(-36.555849, -166.689746, 0), Vector(-35.830203, -167.189912, 0), Vector(-35.115236, -167.710267, 0), Vector(-34.45735, -168.313044, 0), Vector(-33.594617, -169.155465, 0), Vector(-32.610173, -170.328984, 0), Vector(-31.578818, -171.885598, 0), Vector(-30.705878, -173.594196, 0), Vector(-30.109445, -175.12504, 0), Vector(-29.706711, -176.426387, 0), Vector(-29.443448, -177.469738, 0), Vector(-29.219822, -178.568774, 0), Vector(-29.036225, -179.723774, 0), Vector(-28.893575, -180.934737, 0), Vector(-28.78737, -182.201341, 0), Vector(-28.735638, -183.524679, 0), Vector(-28.723925, -184.42518, 0), Vector(-28.717949, -184.884615, 0)], [4, 1, 1, 1, 1, 1, 1, 1, 1, 1, 1, 1, 1, 1, 1, 1, 1, 1, 1, 1, 4], [0, 0.745524535, 1.477620414, 2.207090574, 2.934465325, 3.657932502, 4.384347339, 5.118673636, 5.861150177, 7.365375624, 8.894729774, 10.468936425, 12.099947606, 12.950091786, 13.83580991, 14.759228729, 15.722225242, 16.726454549, 17.773376212, 18.863978586, 20], False, 3, [1, 1, 1, 1, 1, 1, 1, 1, 1, 1, 1, 1, 1, 1, 1, 1, 1, 1, 1, 1, 1, 1, 1], False), False)
sketch2.addGeometry(Part.BSplineCurve([Vector(-47.379808, -164.5, 0), Vector(-46.979106, -164.499792, 0), Vector(-46.198846, -164.499388, 0), Vector(-45.066486, -164.546364, 0), Vector(-44.007583, -164.593617, 0), Vector(-43.025177, -164.688205, 0), Vector(-42.11586, -164.787351, 0), Vector(-41.278001, -164.912876, 0), Vector(-40.516891, -165.073752, 0), Vector(-40.036936, -165.200621, 0), Vector(-39.807692, -165.261218, 0)], [4, 1, 1, 1, 1, 1, 1, 1, 4], [0, 1.259756885, 2.453039283, 3.563158368, 4.591894114, 5.55549294, 6.43918076, 7.254497783, 8], False, 3, [1, 1, 1, 1, 1, 1, 1, 1, 1, 1, 1], False), False)
sketch2.addGeometry(Part.LineSegment(Vector(-54.358974, -171.166667, 0), Vector(-50.552885, -171.166667, 0)), False)
sketch2.addGeometry(Part.BSplineCurve([Vector(-43.597756, -171.551282, 0), Vector(-43.763129, -171.520554, 0), Vector(-44.127216, -171.452901, 0), Vector(-44.731383, -171.373883, 0), Vector(-45.440206, -171.315244, 0), Vector(-46.257298, -171.255379, 0), Vector(-47.179351, -171.22121, 0), Vector(-48.210222, -171.18555, 0), Vector(-49.345598, -171.173368, 0), Vector(-50.138892, -171.168965, 0), Vector(-50.552885, -171.166667, 0)], [4, 1, 1, 1, 1, 1, 1, 1, 4], [0, 0.578738571, 1.274160813, 2.095454135, 3.025967819, 4.093109015, 5.270126069, 6.575371698, 8], False, 3, [1, 1, 1, 1, 1, 1, 1, 1, 1, 1, 1], False), False)
sketch2.addGeometry(Part.BSplineCurve([Vector(-36.410256, -184.516026, 0), Vector(-36.413663, -184.136709, 0), Vector(-36.420263, -183.401901, 0), Vector(-36.461469, -182.335908, 0), Vector(-36.521598, -181.338664, 0), Vector(-36.619468, -180.408935, 0), Vector(-36.73787, -179.545438, 0), Vector(-36.879331, -178.747441, 0), Vector(-37.055194, -178.020181, 0), Vector(-37.316792, -177.156183, 0), Vector(-37.713361, -176.185023, 0), Vector(-38.253014, -175.123208, 0), Vector(-38.915727, -174.218194, 0), Vector(-39.64796, -173.431993, 0), Vector(-40.492237, -172.784989, 0), Vector(-41.42685, -172.243086, 0), Vector(-42.472147, -171.822482, 0), Vector(-43.2157, -171.643333, 0), Vector(-43.597756, -171.551282, 0)], [4, 1, 1, 1, 1, 1, 1, 1, 1, 1, 1, 1, 1, 1, 1, 1, 4], [0, 1.117996097, 2.165769068, 3.143980016, 4.062055362, 4.920439205, 5.712587309, 6.449616741, 7.124491204, 8.371470382, 9.537068822, 10.625202851, 11.666538334, 12.693249444, 13.747832046, 14.842779399, 16], False, 3, [1, 1, 1, 1, 1, 1, 1, 1, 1, 1, 1, 1, 1, 1, 1, 1, 1, 1, 1], False), False)
sketch2.addGeometry(Part.BSplineCurve([Vector(-42.908654, -197.448718, 0), Vector(-42.577586, -197.360373, 0), Vector(-41.932753, -197.188299, 0), Vector(-41.027343, -196.804698, 0), Vector(-40.208063, -196.341926, 0), Vector(-39.461194, -195.785461, 0), Vector(-38.78811, -195.082219, 0), Vector(-38.21355, -194.182828, 0), Vector(-37.681811, -193.110176, 0), Vector(-37.317675, -192.083381, 0), Vector(-37.0563, -191.166271, 0), Vector(-36.87937, -190.396518, 0), Vector(-36.739547, -189.563724, 0), Vector(-36.619281, -188.671174, 0), Vector(-36.522103, -187.720016, 0), Vector(-36.461634, -186.706817, 0), Vector(-36.420364, -185.632816, 0), Vector(-36.41369, -184.895341, 0), Vector(-36.410256, -184.516026, 0)], [4, 1, 1, 1, 1, 1, 1, 1, 1, 1, 1, 1, 1, 1, 1, 1, 4], [0, 1.038686998, 2.023088296, 2.974059649, 3.888265163, 4.839857954, 5.909819677, 7.113156087, 8.466843969, 9.20827164, 10.006482943, 10.861893492, 11.769681931, 12.739021491, 13.762258324, 14.849031541, 16], False, 3, [1, 1, 1, 1, 1, 1, 1, 1, 1, 1, 1, 1, 1, 1, 1, 1, 1, 1, 1], False), False)
sketch2.addGeometry(Part.BSplineCurve([Vector(-48.028846, -197.833333, 0), Vector(-47.743057, -197.831067, 0), Vector(-47.192805, -197.826703, 0), Vector(-46.396576, -197.81388, 0), Vector(-45.664848, -197.779167, 0), Vector(-44.993788, -197.743209, 0), Vector(-44.385143, -197.683801, 0), Vector(-43.836264, -197.625371, 0), Vector(-43.350208, -197.543628, 0), Vector(-43.050008, -197.479101, 0), Vector(-42.908654, -197.448718, 0)], [4, 1, 1, 1, 1, 1, 1, 1, 4], [0, 1.333384787, 2.567275092, 3.714769766, 4.750907381, 5.701951617, 6.567520054, 7.325492842, 8], False, 3, [1, 1, 1, 1, 1, 1, 1, 1, 1, 1, 1], False), False)
sketch2.addGeometry(Part.LineSegment(Vector(-48.028846, -197.833333, 0), Vector(-54.358974, -197.833333, 0)), False)
sketch2.addGeometry(Part.LineSegment(Vector(-54.358974, -197.833333, 0), Vector(-54.358974, -171.166667, 0)), False)
sketch2.addConstraint(Sketcher.Constraint("Block", 12))
sketch2.addConstraint(Sketcher.Constraint("Block", 13))
sketch2.addConstraint(Sketcher.Constraint("Block", 14))
sketch2.addConstraint(Sketcher.Constraint("Block", 15))
sketch2.addConstraint(Sketcher.Constraint("Block", 16))
sketch2.addConstraint(Sketcher.Constraint("Block", 17))
sketch2.addConstraint(Sketcher.Constraint("Block", 18))
sketch2.addConstraint(Sketcher.Constraint("Block", 19))
sketch2.addConstraint(Sketcher.Constraint("Block", 20))
sketch2.addConstraint(Sketcher.Constraint("Block", 21))
sketch2.addConstraint(Sketcher.Constraint("Block", 25))
sketch2.addConstraint(Sketcher.Constraint("Block", 26))
sketch2.addConstraint(Sketcher.Constraint("Block", 27))
sketch2.addConstraint(Sketcher.Constraint("Block", 28))
sketch2.addConstraint(Sketcher.Constraint("Block", 29))
sketch2.addConstraint(Sketcher.Constraint("Block", 30))
sketch2.addConstraint(Sketcher.Constraint("Block", 32))
sketch2.addConstraint(Sketcher.Constraint("Block", 33))
sketch2.addConstraint(Sketcher.Constraint("Block", 34))
sketch2.addConstraint(Sketcher.Constraint("Block", 35))
sketch2.addConstraint(Sketcher.Constraint("Coincident", 22, 2, 23, 1))
sketch2.addConstraint(Sketcher.Constraint("Coincident", 23, 2, 24, 1))
sketch2.addConstraint(Sketcher.Constraint("Coincident", 24, 2, 25, 2))
sketch2.addConstraint(Sketcher.Constraint("Coincident", 30, 1, 22, 1))
sketch2.addConstraint(Sketcher.Constraint("Coincident", 31, 2, 32, 2))
sketch2.addConstraint(Sketcher.Constraint("Coincident", 35, 1, 36, 1))
sketch2.addConstraint(Sketcher.Constraint("Coincident", 36, 2, 37, 1))
sketch2.addConstraint(Sketcher.Constraint("Coincident", 37, 2, 31, 1))
sketch2.addConstraint(Sketcher.Constraint("Vertical", 0))
sketch2.addConstraint(Sketcher.Constraint("Horizontal", 1))
sketch2.addConstraint(Sketcher.Constraint("Vertical", 2))
sketch2.addConstraint(Sketcher.Constraint("Horizontal", 3))
sketch2.addConstraint(Sketcher.Constraint("Vertical", 4))
sketch2.addConstraint(Sketcher.Constraint("Horizontal", 5))
sketch2.addConstraint(Sketcher.Constraint("Vertical", 6))
sketch2.addConstraint(Sketcher.Constraint("Horizontal", 7))
sketch2.addConstraint(Sketcher.Constraint("Vertical", 8))
sketch2.addConstraint(Sketcher.Constraint("Horizontal", 9))
sketch2.addConstraint(Sketcher.Constraint("Vertical", 10))
sketch2.addConstraint(Sketcher.Constraint("Horizontal", 11))
sketch2.addConstraint(Sketcher.Constraint("Horizontal", 22))
sketch2.addConstraint(Sketcher.Constraint("Vertical", 23))
sketch2.addConstraint(Sketcher.Constraint("Horizontal", 24))
sketch2.addConstraint(Sketcher.Constraint("Horizontal", 31))
sketch2.addConstraint(Sketcher.Constraint("Horizontal", 36))
sketch2.addConstraint(Sketcher.Constraint("Vertical", 37))
sketch2.addConstraint(Sketcher.Constraint("Horizontal", 1, 2, 4, 2))
sketch2.addConstraint(Sketcher.Constraint("Horizontal", 7, 2, 10, 2))
sketch2.addConstraint(Sketcher.Constraint("Horizontal", 9, 2, 22, 2))
sketch2.addConstraint(Sketcher.Constraint("Horizontal", 5, 2, 23, 2))
sketch2.addConstraint(Sketcher.Constraint("Horizontal", 11, 2, 31, 2))
sketch2.addConstraint(Sketcher.Constraint("Equal", 3, 5))
sketch2.addConstraint(Sketcher.Constraint("Equal", 7, 11))
sketch2.addConstraint(Sketcher.Constraint("Equal", 5, 0))
sketch2.addConstraint(Sketcher.Constraint("DistanceX", 22, 2, 6, 2, 100.0))
sketch2.addConstraint(Sketcher.Constraint("DistanceX", 7, 1, 7, 2, 11.794872))
sketch2.addConstraint(Sketcher.Constraint("DistanceX", 9, 2, 9, 1, 31.282051))
sketch2.addConstraint(Sketcher.Constraint("DistanceX", 31, 1, 31, 2, 3.80609))
sketch2.addConstraint(Sketcher.Constraint("DistanceX", 22, 2, 22, 1, 14.671474))
sketch2.addConstraint(Sketcher.Constraint("DistanceX", -1, 1, 0, 2, 54.871795))
pocket1 = doc.addObject("PartDesign::Pocket", "Pocket")
body.addObject(pocket1)
pocket1.Profile = sketch2
pocket1.Length = 1

doc.recompute()
